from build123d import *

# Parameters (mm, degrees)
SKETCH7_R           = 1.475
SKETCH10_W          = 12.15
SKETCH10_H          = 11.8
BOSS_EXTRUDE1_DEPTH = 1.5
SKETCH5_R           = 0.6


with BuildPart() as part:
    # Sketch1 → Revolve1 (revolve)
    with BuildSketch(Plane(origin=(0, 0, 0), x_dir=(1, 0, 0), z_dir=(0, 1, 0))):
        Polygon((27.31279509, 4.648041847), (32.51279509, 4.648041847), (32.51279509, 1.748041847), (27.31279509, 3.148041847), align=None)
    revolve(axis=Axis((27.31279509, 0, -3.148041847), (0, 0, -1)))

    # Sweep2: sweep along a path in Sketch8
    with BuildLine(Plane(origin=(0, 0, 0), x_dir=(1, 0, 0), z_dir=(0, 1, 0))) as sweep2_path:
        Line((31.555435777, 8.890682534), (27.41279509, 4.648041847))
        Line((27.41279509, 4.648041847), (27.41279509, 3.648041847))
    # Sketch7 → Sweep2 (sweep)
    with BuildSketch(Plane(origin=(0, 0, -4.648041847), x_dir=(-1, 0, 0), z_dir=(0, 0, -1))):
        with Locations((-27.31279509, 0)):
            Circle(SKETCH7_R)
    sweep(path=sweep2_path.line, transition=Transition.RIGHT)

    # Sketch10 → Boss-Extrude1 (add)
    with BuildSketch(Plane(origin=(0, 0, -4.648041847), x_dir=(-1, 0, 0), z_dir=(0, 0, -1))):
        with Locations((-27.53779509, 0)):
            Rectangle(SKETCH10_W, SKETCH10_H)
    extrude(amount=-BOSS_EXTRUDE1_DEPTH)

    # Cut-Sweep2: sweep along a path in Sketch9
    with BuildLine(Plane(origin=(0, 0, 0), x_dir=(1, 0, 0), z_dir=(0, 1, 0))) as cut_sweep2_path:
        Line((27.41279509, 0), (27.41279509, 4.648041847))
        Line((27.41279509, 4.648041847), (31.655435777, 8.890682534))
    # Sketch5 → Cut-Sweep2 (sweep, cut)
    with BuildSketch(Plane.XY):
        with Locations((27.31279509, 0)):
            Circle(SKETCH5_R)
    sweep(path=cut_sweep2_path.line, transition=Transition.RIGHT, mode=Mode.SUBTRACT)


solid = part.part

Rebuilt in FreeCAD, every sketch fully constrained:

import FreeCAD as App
import Part
import Sketcher

V = App.Vector
Q = App.Units.Quantity

doc = App.newDocument("Part")
params = doc.addObject("Spreadsheet::Sheet", "Params")
for row, (alias, value) in enumerate([
    ("sketch1_width", "5.2 mm"),
    ("sketch1_height", "1.5 mm"),
    ("sketch1_height2", "2.9 mm"),
    ("revolution_angle", "360 deg"),
    ("sketch2_diameter", "2.95 mm"),
    ("sketch3_height", "1 mm"),
    ("sketch4_height", "11.8 mm"),
    ("sketch4_width", "12.15 mm"),
    ("pad1_length", "1.5 mm"),
    ("sketch5_diameter", "1.2 mm"),
    ("sketch6_length", "6 mm"),
], start=1):
    params.set(f"A{row}", alias)
    params.set(f"B{row}", "=" + value)
    params.setAlias(f"B{row}", alias)

body = doc.addObject("PartDesign::Body", "Body")

# Sketch on XZ plane
sketch1 = body.newObject("Sketcher::SketchObject", "Sketch")
sketch1.AttachmentSupport = (doc.getObject("XZ_Plane"), [""])
sketch1.MapMode = "FlatFace"
sketch1.addGeometry([
    Part.LineSegment(V(32.512795, -4.648042, 0), V(27.312795, -4.648042, 0)),
    Part.LineSegment(V(27.312795, -4.648042, 0), V(27.312795, -3.148042, 0)),
    Part.LineSegment(V(27.312795, -3.148042, 0), V(32.512795, -1.748042, 0)),
    Part.LineSegment(V(32.512795, -1.748042, 0), V(32.512795, -4.648042, 0)),
], False)
sketch1.addGeometry(Part.LineSegment(V(27.312795, -1.748042, 0), V(27.312795, -4.648042, 0)), True)  # axis
sketch1.addConstraint([
    Sketcher.Constraint("Coincident", 0, 2, 1, 1),
    Sketcher.Constraint("Coincident", 1, 2, 2, 1),
    Sketcher.Constraint("Coincident", 2, 2, 3, 1),
    Sketcher.Constraint("Coincident", 3, 2, 0, 1),
    Sketcher.Constraint("Horizontal", 0),
    Sketcher.Constraint("Vertical", 1),
    Sketcher.Constraint("Vertical", 3),
    Sketcher.Constraint("Vertical", 4),
    Sketcher.Constraint("Coincident", 4, 2, 0, 2),
    Sketcher.Constraint("Horizontal", 2, 2, 4, 1),
    Sketcher.Constraint("DistanceX", 0, 2, 0, 1, Q("5.2 mm")),
    Sketcher.Constraint("DistanceY", 1, 1, 1, 2, Q("1.5 mm")),
    Sketcher.Constraint("DistanceY", 3, 2, 3, 1, Q("2.9 mm")),
    Sketcher.Constraint("DistanceY", 0, 2, -1, 1, Q("4.648042 mm")),
    Sketcher.Constraint("DistanceX", -1, 1, 0, 2, Q("27.312795 mm")),
])
sketch1.setExpression("Constraints[10]", "Params.sketch1_width")
sketch1.setExpression("Constraints[11]", "Params.sketch1_height")
sketch1.setExpression("Constraints[12]", "Params.sketch1_height2")
revolution = body.newObject("PartDesign::Revolution", "Revolution")
revolution.Profile = sketch1
revolution.ReferenceAxis = (sketch1, ["Axis0"])
revolution.setExpression("Angle", "Params.revolution_angle")

# Sketch on XY plane
sketch2 = body.newObject("Sketcher::SketchObject", "Sketch001")
sketch2.AttachmentSupport = (doc.getObject("XY_Plane"), [""])
sketch2.MapMode = "FlatFace"
sketch2.AttachmentOffset = App.Placement(V(0, 0, -4.648042), App.Rotation())
sketch2.addGeometry(Part.Circle(V(27.312795, 0, 0), V(0, 0, 1), 1.475), False)
sketch2.addConstraint([
    Sketcher.Constraint("PointOnObject", 0, 3, -1),
    Sketcher.Constraint("Diameter", 0, Q("2.95 mm")),
    Sketcher.Constraint("DistanceX", -1, 1, 0, 3, Q("27.312795 mm")),
])
sketch2.setExpression("Constraints[1]", "Params.sketch2_diameter")

# Sketch on XZ plane
sketch3 = body.newObject("Sketcher::SketchObject", "Sketch002")
sketch3.AttachmentSupport = (doc.getObject("XZ_Plane"), [""])
sketch3.MapMode = "FlatFace"
sketch3.addGeometry([
    Part.LineSegment(V(31.555436, -8.890683, 0), V(27.412795, -4.648042, 0)),
    Part.LineSegment(V(27.412795, -4.648042, 0), V(27.412795, -3.648042, 0)),
], False)
sketch3.addConstraint([
    Sketcher.Constraint("Coincident", 0, 2, 1, 1),
    Sketcher.Constraint("Vertical", 1),
    Sketcher.Constraint("DistanceY", 1, 1, 1, 2, Q("1 mm")),
    Sketcher.Constraint("Distance", 0, Q("5.929711 mm")),
    Sketcher.Constraint("DistanceY", 0, 2, -1, 1, Q("4.648042 mm")),
    Sketcher.Constraint("DistanceX", 0, 2, 0, 1, Q("4.142641 mm")),
    Sketcher.Constraint("DistanceX", -1, 1, 0, 1, Q("31.555436 mm")),
])
sketch3.setExpression("Constraints[2]", "Params.sketch3_height")
doc.recompute()

additivepipe = body.newObject("PartDesign::AdditivePipe", "AdditivePipe")
additivepipe.Profile = sketch2
additivepipe.Spine = (sketch3, ["Edge1", "Edge2"])
additivepipe.Transition = "Right corner"

# Sketch on XY plane
sketch4 = body.newObject("Sketcher::SketchObject", "Sketch003")
sketch4.AttachmentSupport = (doc.getObject("XY_Plane"), [""])
sketch4.MapMode = "FlatFace"
sketch4.AttachmentOffset = App.Placement(V(0, 0, -4.648042), App.Rotation())
sketch4.addGeometry([
    Part.LineSegment(V(33.612795, 5.9, 0), V(33.612795, -5.9, 0)),
    Part.LineSegment(V(33.612795, -5.9, 0), V(21.462795, -5.9, 0)),
    Part.LineSegment(V(21.462795, -5.9, 0), V(21.462795, 5.9, 0)),
    Part.LineSegment(V(21.462795, 5.9, 0), V(33.612795, 5.9, 0)),
], False)
sketch4.addConstraint([
    Sketcher.Constraint("Coincident", 0, 2, 1, 1),
    Sketcher.Constraint("Coincident", 1, 2, 2, 1),
    Sketcher.Constraint("Coincident", 2, 2, 3, 1),
    Sketcher.Constraint("Coincident", 3, 2, 0, 1),
    Sketcher.Constraint("Vertical", 0),
    Sketcher.Constraint("Horizontal", 1),
    Sketcher.Constraint("Vertical", 2),
    Sketcher.Constraint("Horizontal", 3),
    Sketcher.Constraint("DistanceY", 0, 2, 0, 1, Q("11.8 mm")),
    Sketcher.Constraint("DistanceX", 1, 2, 1, 1, Q("12.15 mm")),
    Sketcher.Constraint("DistanceY", 0, 2, -1, 1, Q("5.9 mm")),
    Sketcher.Constraint("DistanceX", -1, 1, 0, 2, Q("33.612795 mm")),
])
sketch4.setExpression("Constraints[8]", "Params.sketch4_height")
sketch4.setExpression("Constraints[9]", "Params.sketch4_width")
pad1 = body.newObject("PartDesign::Pad", "Pad")
pad1.Profile = sketch4
pad1.setExpression("Length", "Params.pad1_length")

# Sketch on XY plane
sketch5 = body.newObject("Sketcher::SketchObject", "Sketch004")
sketch5.AttachmentSupport = (doc.getObject("XY_Plane"), [""])
sketch5.MapMode = "FlatFace"
sketch5.addGeometry(Part.Circle(V(27.312795, 0, 0), V(0, 0, 1), 0.6), False)
sketch5.addConstraint([
    Sketcher.Constraint("PointOnObject", 0, 3, -1),
    Sketcher.Constraint("Diameter", 0, Q("1.2 mm")),
    Sketcher.Constraint("DistanceX", -1, 1, 0, 3, Q("27.312795 mm")),
])
sketch5.setExpression("Constraints[1]", "Params.sketch5_diameter")

# Sketch on XZ plane
sketch6 = body.newObject("Sketcher::SketchObject", "Sketch005")
sketch6.AttachmentSupport = (doc.getObject("XZ_Plane"), [""])
sketch6.MapMode = "FlatFace"
sketch6.addGeometry([
    Part.LineSegment(V(27.412795, 0, 0), V(27.412795, -4.648042, 0)),
    Part.LineSegment(V(27.412795, -4.648042, 0), V(31.655436, -8.890683, 0)),
], False)
sketch6.addConstraint([
    Sketcher.Constraint("Coincident", 0, 2, 1, 1),
    Sketcher.Constraint("Vertical", 0),
    Sketcher.Constraint("PointOnObject", 0, 1, -1),
    Sketcher.Constraint("Angle", 1, Q("-45 deg")),
    Sketcher.Constraint("Distance", 1, Q("6 mm")),
    Sketcher.Constraint("DistanceY", 0, 2, 0, 1, Q("4.648042 mm")),
    Sketcher.Constraint("DistanceX", -1, 1, 0, 1, Q("27.412795 mm")),
])
sketch6.setExpression("Constraints[4]", "Params.sketch6_length")
doc.recompute()

subtractivepipe = body.newObject("PartDesign::SubtractivePipe", "SubtractivePipe")
subtractivepipe.Profile = sketch5
subtractivepipe.Spine = (sketch6, ["Edge1", "Edge2"])
subtractivepipe.Transition = "Right corner"

doc.recompute()
